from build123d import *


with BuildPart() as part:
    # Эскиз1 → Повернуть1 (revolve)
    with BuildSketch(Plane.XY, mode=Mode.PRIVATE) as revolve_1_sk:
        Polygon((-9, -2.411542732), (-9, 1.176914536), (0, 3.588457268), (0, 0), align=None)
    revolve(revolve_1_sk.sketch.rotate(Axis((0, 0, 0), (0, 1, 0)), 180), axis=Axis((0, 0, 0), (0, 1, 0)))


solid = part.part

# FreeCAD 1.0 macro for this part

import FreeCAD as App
import Part
import Sketcher
from FreeCAD import Vector
Q = App.Units.Quantity


def add_polygon(sketch, points):
    """Adds a closed chain of lines whose ends are joined by coincident constraints."""
    first, n = sketch.GeometryCount, len(points)
    for a, b in zip(points, points[1:] + points[:1]):
        sketch.addGeometry(Part.LineSegment(App.Vector(*a, 0), App.Vector(*b, 0)), False)
    for i in range(n):
        sketch.addConstraint(Sketcher.Constraint("Coincident", first + i, 2, first + (i + 1) % n, 1))

doc = App.newDocument("Part")
body = doc.addObject("PartDesign::Body", "Body")

# Sketch on XY plane
sketch1 = body.newObject("Sketcher::SketchObject", "Sketch")
sketch1.AttachmentSupport = (doc.getObject("XY_Plane"), [""])
sketch1.MapMode = "FlatFace"
add_polygon(sketch1, [(-9, 1.2), (-9, -2.4), (0, 0), (0, 3.6)])  # lines 0-3
sketch1.addConstraint([
    Sketcher.Constraint("Vertical", 0),
    Sketcher.Constraint("Vertical", 2),
    Sketcher.Constraint("Coincident", 1, 2, -1, 1),
    Sketcher.Constraint("Parallel", 1, 3),
    Sketcher.Constraint("Angle", 1, Q("15 deg")),
    Sketcher.Constraint("DistanceX", 0, 2, -1, 1, 9.0),
    Sketcher.Constraint("DistanceY", 0, 2, 2, 2, 6.0),
])
revolution = body.newObject("PartDesign::Revolution", "Revolution")
revolution.Profile = sketch1
revolution.ReferenceAxis = (sketch1, ["V_Axis"])
revolution.Angle = 360

doc.recompute()
